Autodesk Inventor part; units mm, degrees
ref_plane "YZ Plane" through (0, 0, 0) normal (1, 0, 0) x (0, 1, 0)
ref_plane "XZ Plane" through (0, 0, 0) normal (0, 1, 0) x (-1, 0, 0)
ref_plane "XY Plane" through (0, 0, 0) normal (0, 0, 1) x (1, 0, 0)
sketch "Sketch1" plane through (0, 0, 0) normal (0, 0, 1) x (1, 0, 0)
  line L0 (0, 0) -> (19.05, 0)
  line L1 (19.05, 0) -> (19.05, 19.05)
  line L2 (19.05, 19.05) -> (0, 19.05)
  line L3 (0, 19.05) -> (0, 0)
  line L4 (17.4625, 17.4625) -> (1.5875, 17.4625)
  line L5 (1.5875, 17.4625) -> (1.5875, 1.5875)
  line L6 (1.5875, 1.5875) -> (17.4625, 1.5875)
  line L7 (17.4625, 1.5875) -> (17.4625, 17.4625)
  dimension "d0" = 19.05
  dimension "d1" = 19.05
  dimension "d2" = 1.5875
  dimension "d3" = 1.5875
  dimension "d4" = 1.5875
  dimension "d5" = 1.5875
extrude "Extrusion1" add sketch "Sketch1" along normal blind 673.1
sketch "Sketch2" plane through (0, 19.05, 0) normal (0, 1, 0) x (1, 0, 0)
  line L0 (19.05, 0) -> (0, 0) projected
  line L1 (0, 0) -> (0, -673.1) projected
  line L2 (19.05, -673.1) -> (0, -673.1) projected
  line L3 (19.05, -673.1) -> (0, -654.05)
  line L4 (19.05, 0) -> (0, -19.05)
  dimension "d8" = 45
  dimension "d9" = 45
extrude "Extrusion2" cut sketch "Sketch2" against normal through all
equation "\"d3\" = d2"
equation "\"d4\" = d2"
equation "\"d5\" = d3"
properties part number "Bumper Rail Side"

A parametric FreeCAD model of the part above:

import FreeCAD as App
import Part
import Sketcher

V = App.Vector
Q = App.Units.Quantity


def add_polygon(sketch, points):
    """Adds a closed chain of lines whose ends are joined by coincident constraints."""
    first, n = sketch.GeometryCount, len(points)
    for a, b in zip(points, points[1:] + points[:1]):
        sketch.addGeometry(Part.LineSegment(App.Vector(*a, 0), App.Vector(*b, 0)), False)
    for i in range(n):
        sketch.addConstraint(Sketcher.Constraint("Coincident", first + i, 2, first + (i + 1) % n, 1))

doc = App.newDocument("Part")
body = doc.addObject("PartDesign::Body", "Body")

# Sketch on XY plane
sketch1 = doc.addObject("Sketcher::SketchObject", "Sketch")
body.addObject(sketch1)
sketch1.AttachmentSupport = (doc.XY_Plane, [""])
sketch1.MapMode = "FlatFace"
add_polygon(sketch1, [(0, 19), (0, 0), (19, 0), (19, 19)])  # lines 0-3
add_polygon(sketch1, [(2, 17), (17, 17), (17, 2), (2, 2)])  # lines 4-7
sketch1.addConstraint([
    Sketcher.Constraint("Vertical", 0),
    Sketcher.Constraint("Horizontal", 1),
    Sketcher.Constraint("Vertical", 2),
    Sketcher.Constraint("Horizontal", 3),
    Sketcher.Constraint("Horizontal", 4),
    Sketcher.Constraint("Vertical", 5),
    Sketcher.Constraint("Horizontal", 6),
    Sketcher.Constraint("Vertical", 7),
    Sketcher.Constraint("Coincident", 0, 2, -1, 1),
    Sketcher.Constraint("Equal", 3, 0),
    Sketcher.Constraint("Equal", 6, 5),
    Sketcher.Constraint("DistanceX", 1, 1, 1, 2, Q("0.75 in")),
    Sketcher.Constraint("DistanceY", -1, 1, 5, 2, Q("0.0625 in")),
    Sketcher.Constraint("DistanceX", -1, 1, 6, 2, Q("0.0625 in")),
    Sketcher.Constraint("DistanceX", 4, 2, 2, 2, Q("0.0625 in")),
])
pad1 = doc.addObject("PartDesign::Pad", "Pad")
body.addObject(pad1)
pad1.Profile = sketch1
pad1.Length = Q("26.5 in")

# Sketch on XZ plane
sketch2 = doc.addObject("Sketcher::SketchObject", "Sketch001")
body.addObject(sketch2)
sketch2.AttachmentSupport = (doc.XZ_Plane, [""])
sketch2.MapMode = "FlatFace"
sketch2.AttachmentOffset = App.Placement(V(0, 0, -0.75 * 25.4), App.Rotation())
add_polygon(sketch2, [(0, 19), (19, 0), (0, 0)])  # lines 0-2
add_polygon(sketch2, [(19, 673), (0, 654), (0, 673)])  # lines 3-5
sketch2.addConstraint([
    Sketcher.Constraint("Horizontal", 1),
    Sketcher.Constraint("Vertical", 2),
    Sketcher.Constraint("Vertical", 4),
    Sketcher.Constraint("Horizontal", 5),
    Sketcher.Constraint("Coincident", 1, 2, -1, 1),
    Sketcher.Constraint("PointOnObject", 3, 2, -2),
    Sketcher.Constraint("Perpendicular", 0, 3),
    Sketcher.Constraint("Vertical", 0, 2, 5, 2),
    Sketcher.Constraint("Equal", 5, 2),
    Sketcher.Constraint("DistanceY", 2, 2, 3, 2, Q("25 in")),
    Sketcher.Constraint("DistanceX", 1, 2, 1, 1, Q("0.75 in")),
])
pocket1 = doc.addObject("PartDesign::Pocket", "Pocket")
body.addObject(pocket1)
pocket1.Profile = sketch2
pocket1.Type = "ThroughAll"
pocket1.Reversed = True

doc.recompute()
